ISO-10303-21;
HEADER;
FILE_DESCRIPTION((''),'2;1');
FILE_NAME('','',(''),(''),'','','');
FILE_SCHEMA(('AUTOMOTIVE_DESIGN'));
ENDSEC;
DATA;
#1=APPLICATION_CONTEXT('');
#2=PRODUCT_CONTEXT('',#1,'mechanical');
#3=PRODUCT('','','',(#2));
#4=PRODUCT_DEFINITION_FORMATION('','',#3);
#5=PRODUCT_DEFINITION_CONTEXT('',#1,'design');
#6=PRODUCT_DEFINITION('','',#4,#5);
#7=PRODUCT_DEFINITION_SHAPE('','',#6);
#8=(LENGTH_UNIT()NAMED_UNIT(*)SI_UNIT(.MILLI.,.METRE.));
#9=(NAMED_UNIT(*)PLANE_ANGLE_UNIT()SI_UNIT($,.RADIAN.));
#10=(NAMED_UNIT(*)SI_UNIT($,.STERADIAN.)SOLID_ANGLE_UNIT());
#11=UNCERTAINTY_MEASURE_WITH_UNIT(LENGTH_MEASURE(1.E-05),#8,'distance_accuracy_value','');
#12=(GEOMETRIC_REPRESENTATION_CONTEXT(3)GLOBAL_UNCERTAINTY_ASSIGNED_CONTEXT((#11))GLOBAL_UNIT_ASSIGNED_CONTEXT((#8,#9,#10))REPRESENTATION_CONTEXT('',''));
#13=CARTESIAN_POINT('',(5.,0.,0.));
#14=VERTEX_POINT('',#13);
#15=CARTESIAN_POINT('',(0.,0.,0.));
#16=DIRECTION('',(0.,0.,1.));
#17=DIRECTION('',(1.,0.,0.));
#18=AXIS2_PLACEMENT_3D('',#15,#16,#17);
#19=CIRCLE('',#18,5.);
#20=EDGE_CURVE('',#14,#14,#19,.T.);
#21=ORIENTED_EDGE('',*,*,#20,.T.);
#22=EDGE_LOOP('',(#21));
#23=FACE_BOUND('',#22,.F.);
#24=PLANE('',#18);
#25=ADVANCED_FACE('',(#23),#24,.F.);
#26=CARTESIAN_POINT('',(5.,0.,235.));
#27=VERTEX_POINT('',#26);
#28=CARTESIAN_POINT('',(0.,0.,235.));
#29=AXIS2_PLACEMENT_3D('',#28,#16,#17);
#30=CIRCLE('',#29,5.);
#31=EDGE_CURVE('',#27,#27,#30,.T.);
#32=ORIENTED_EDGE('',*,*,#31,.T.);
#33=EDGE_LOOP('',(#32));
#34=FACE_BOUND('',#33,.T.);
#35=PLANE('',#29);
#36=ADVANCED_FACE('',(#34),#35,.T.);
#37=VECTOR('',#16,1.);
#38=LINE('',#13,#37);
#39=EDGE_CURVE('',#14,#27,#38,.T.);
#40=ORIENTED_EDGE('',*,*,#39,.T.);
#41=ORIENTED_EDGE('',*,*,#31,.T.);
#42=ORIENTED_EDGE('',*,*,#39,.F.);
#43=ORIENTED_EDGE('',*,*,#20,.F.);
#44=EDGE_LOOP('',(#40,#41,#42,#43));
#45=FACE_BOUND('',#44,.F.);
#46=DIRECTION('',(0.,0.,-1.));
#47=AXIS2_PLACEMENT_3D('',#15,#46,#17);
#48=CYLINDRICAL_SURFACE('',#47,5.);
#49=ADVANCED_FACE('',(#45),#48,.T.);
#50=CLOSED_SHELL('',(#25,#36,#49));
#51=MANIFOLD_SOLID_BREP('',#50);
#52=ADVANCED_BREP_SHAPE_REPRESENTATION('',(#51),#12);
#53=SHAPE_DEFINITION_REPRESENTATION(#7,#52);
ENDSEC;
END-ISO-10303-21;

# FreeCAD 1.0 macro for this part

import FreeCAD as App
import Part
import Sketcher
Q = App.Units.Quantity

doc = App.newDocument("Part")
body = doc.addObject("PartDesign::Body", "Body")

sketch1 = body.newObject("Sketcher::SketchObject", "Sketch")
sketch1.AttachmentSupport = (doc.getObject("XY_Plane"), [""])
sketch1.MapMode = "FlatFace"
sketch1.addGeometry(Part.Circle(App.Vector(0, 0, 0), App.Vector(0, 0, 1), 5), False)
sketch1.addConstraint(Sketcher.Constraint("Coincident", 0, 3, -1, 1))
sketch1.addConstraint(Sketcher.Constraint("Diameter", 0, Q("10 mm")))
pad1 = body.newObject("PartDesign::Pad", "Pad")
pad1.Profile = sketch1
pad1.Length = 235

doc.recompute()
